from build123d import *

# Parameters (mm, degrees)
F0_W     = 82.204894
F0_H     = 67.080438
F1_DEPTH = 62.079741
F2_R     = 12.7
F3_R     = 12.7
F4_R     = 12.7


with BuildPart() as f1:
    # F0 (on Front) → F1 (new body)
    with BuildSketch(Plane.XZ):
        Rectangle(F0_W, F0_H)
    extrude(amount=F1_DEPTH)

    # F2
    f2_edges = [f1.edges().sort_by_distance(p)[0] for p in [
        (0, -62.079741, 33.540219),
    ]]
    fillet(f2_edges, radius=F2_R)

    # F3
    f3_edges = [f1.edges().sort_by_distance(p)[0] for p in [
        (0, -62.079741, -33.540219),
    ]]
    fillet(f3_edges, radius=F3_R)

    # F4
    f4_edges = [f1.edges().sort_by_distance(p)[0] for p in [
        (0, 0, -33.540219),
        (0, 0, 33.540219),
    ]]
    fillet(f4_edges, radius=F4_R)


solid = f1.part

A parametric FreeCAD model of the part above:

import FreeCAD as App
import Part
import Sketcher
from FreeCAD import Vector
Q = App.Units.Quantity


def edges_at(feature, points):
    """Names of the edges that pass closest to the given points."""
    edges = feature.Shape.Edges
    near = lambda p: min(range(len(edges)), key=lambda i: edges[i].distToShape(Part.Vertex(*p))[0])
    return sorted({f"Edge{near(p) + 1}" for p in points})

doc = App.newDocument("Part")
body = doc.addObject("PartDesign::Body", "Body")

# Sketch on XZ plane
sketch1 = body.newObject("Sketcher::SketchObject", "Sketch")
sketch1.AttachmentSupport = (doc.getObject("XZ_Plane"), [""])
sketch1.MapMode = "FlatFace"
sketch1.addGeometry([
    Part.LineSegment(Vector(-41, 34, 0), Vector(-41, -34, 0)),
    Part.LineSegment(Vector(-41, -34, 0), Vector(41, -34, 0)),
    Part.LineSegment(Vector(41, -34, 0), Vector(41, 34, 0)),
    Part.LineSegment(Vector(41, 34, 0), Vector(-41, 34, 0)),
], False)
sketch1.addConstraint([
    Sketcher.Constraint("Coincident", 0, 2, 1, 1),
    Sketcher.Constraint("Coincident", 1, 2, 2, 1),
    Sketcher.Constraint("Coincident", 2, 2, 3, 1),
    Sketcher.Constraint("Coincident", 3, 2, 0, 1),
    Sketcher.Constraint("Vertical", 0),
    Sketcher.Constraint("Horizontal", 1),
    Sketcher.Constraint("Vertical", 2),
    Sketcher.Constraint("Horizontal", 3),
    Sketcher.Constraint("Symmetric", 0, 2, 2, 2, -1, 1),
    Sketcher.Constraint("DistanceY", 0, 2, 0, 1, Q("67.080438 mm")),
    Sketcher.Constraint("DistanceX", 1, 1, 1, 2, Q("82.204894 mm")),
])
pad1 = body.newObject("PartDesign::Pad", "Pad")
pad1.Profile = sketch1
pad1.Length = 62.079741
doc.recompute()

fillet = body.newObject("PartDesign::Fillet", "Fillet")
fillet.Base = (pad1, edges_at(pad1, [(0, -62.08, 33.54)]))
fillet.Radius = Q("0.5 in")
doc.recompute()

fillet2 = body.newObject("PartDesign::Fillet", "Fillet001")
fillet2.Base = (fillet, edges_at(fillet, [(0, -62.08, -33.54)]))
fillet2.Radius = Q("0.5 in")
doc.recompute()

fillet3 = body.newObject("PartDesign::Fillet", "Fillet002")
fillet3.Base = (fillet2, edges_at(fillet2, [(0, 0, -33.54), (0, 0, 33.54)]))
fillet3.Radius = Q("0.5 in")

doc.recompute()
